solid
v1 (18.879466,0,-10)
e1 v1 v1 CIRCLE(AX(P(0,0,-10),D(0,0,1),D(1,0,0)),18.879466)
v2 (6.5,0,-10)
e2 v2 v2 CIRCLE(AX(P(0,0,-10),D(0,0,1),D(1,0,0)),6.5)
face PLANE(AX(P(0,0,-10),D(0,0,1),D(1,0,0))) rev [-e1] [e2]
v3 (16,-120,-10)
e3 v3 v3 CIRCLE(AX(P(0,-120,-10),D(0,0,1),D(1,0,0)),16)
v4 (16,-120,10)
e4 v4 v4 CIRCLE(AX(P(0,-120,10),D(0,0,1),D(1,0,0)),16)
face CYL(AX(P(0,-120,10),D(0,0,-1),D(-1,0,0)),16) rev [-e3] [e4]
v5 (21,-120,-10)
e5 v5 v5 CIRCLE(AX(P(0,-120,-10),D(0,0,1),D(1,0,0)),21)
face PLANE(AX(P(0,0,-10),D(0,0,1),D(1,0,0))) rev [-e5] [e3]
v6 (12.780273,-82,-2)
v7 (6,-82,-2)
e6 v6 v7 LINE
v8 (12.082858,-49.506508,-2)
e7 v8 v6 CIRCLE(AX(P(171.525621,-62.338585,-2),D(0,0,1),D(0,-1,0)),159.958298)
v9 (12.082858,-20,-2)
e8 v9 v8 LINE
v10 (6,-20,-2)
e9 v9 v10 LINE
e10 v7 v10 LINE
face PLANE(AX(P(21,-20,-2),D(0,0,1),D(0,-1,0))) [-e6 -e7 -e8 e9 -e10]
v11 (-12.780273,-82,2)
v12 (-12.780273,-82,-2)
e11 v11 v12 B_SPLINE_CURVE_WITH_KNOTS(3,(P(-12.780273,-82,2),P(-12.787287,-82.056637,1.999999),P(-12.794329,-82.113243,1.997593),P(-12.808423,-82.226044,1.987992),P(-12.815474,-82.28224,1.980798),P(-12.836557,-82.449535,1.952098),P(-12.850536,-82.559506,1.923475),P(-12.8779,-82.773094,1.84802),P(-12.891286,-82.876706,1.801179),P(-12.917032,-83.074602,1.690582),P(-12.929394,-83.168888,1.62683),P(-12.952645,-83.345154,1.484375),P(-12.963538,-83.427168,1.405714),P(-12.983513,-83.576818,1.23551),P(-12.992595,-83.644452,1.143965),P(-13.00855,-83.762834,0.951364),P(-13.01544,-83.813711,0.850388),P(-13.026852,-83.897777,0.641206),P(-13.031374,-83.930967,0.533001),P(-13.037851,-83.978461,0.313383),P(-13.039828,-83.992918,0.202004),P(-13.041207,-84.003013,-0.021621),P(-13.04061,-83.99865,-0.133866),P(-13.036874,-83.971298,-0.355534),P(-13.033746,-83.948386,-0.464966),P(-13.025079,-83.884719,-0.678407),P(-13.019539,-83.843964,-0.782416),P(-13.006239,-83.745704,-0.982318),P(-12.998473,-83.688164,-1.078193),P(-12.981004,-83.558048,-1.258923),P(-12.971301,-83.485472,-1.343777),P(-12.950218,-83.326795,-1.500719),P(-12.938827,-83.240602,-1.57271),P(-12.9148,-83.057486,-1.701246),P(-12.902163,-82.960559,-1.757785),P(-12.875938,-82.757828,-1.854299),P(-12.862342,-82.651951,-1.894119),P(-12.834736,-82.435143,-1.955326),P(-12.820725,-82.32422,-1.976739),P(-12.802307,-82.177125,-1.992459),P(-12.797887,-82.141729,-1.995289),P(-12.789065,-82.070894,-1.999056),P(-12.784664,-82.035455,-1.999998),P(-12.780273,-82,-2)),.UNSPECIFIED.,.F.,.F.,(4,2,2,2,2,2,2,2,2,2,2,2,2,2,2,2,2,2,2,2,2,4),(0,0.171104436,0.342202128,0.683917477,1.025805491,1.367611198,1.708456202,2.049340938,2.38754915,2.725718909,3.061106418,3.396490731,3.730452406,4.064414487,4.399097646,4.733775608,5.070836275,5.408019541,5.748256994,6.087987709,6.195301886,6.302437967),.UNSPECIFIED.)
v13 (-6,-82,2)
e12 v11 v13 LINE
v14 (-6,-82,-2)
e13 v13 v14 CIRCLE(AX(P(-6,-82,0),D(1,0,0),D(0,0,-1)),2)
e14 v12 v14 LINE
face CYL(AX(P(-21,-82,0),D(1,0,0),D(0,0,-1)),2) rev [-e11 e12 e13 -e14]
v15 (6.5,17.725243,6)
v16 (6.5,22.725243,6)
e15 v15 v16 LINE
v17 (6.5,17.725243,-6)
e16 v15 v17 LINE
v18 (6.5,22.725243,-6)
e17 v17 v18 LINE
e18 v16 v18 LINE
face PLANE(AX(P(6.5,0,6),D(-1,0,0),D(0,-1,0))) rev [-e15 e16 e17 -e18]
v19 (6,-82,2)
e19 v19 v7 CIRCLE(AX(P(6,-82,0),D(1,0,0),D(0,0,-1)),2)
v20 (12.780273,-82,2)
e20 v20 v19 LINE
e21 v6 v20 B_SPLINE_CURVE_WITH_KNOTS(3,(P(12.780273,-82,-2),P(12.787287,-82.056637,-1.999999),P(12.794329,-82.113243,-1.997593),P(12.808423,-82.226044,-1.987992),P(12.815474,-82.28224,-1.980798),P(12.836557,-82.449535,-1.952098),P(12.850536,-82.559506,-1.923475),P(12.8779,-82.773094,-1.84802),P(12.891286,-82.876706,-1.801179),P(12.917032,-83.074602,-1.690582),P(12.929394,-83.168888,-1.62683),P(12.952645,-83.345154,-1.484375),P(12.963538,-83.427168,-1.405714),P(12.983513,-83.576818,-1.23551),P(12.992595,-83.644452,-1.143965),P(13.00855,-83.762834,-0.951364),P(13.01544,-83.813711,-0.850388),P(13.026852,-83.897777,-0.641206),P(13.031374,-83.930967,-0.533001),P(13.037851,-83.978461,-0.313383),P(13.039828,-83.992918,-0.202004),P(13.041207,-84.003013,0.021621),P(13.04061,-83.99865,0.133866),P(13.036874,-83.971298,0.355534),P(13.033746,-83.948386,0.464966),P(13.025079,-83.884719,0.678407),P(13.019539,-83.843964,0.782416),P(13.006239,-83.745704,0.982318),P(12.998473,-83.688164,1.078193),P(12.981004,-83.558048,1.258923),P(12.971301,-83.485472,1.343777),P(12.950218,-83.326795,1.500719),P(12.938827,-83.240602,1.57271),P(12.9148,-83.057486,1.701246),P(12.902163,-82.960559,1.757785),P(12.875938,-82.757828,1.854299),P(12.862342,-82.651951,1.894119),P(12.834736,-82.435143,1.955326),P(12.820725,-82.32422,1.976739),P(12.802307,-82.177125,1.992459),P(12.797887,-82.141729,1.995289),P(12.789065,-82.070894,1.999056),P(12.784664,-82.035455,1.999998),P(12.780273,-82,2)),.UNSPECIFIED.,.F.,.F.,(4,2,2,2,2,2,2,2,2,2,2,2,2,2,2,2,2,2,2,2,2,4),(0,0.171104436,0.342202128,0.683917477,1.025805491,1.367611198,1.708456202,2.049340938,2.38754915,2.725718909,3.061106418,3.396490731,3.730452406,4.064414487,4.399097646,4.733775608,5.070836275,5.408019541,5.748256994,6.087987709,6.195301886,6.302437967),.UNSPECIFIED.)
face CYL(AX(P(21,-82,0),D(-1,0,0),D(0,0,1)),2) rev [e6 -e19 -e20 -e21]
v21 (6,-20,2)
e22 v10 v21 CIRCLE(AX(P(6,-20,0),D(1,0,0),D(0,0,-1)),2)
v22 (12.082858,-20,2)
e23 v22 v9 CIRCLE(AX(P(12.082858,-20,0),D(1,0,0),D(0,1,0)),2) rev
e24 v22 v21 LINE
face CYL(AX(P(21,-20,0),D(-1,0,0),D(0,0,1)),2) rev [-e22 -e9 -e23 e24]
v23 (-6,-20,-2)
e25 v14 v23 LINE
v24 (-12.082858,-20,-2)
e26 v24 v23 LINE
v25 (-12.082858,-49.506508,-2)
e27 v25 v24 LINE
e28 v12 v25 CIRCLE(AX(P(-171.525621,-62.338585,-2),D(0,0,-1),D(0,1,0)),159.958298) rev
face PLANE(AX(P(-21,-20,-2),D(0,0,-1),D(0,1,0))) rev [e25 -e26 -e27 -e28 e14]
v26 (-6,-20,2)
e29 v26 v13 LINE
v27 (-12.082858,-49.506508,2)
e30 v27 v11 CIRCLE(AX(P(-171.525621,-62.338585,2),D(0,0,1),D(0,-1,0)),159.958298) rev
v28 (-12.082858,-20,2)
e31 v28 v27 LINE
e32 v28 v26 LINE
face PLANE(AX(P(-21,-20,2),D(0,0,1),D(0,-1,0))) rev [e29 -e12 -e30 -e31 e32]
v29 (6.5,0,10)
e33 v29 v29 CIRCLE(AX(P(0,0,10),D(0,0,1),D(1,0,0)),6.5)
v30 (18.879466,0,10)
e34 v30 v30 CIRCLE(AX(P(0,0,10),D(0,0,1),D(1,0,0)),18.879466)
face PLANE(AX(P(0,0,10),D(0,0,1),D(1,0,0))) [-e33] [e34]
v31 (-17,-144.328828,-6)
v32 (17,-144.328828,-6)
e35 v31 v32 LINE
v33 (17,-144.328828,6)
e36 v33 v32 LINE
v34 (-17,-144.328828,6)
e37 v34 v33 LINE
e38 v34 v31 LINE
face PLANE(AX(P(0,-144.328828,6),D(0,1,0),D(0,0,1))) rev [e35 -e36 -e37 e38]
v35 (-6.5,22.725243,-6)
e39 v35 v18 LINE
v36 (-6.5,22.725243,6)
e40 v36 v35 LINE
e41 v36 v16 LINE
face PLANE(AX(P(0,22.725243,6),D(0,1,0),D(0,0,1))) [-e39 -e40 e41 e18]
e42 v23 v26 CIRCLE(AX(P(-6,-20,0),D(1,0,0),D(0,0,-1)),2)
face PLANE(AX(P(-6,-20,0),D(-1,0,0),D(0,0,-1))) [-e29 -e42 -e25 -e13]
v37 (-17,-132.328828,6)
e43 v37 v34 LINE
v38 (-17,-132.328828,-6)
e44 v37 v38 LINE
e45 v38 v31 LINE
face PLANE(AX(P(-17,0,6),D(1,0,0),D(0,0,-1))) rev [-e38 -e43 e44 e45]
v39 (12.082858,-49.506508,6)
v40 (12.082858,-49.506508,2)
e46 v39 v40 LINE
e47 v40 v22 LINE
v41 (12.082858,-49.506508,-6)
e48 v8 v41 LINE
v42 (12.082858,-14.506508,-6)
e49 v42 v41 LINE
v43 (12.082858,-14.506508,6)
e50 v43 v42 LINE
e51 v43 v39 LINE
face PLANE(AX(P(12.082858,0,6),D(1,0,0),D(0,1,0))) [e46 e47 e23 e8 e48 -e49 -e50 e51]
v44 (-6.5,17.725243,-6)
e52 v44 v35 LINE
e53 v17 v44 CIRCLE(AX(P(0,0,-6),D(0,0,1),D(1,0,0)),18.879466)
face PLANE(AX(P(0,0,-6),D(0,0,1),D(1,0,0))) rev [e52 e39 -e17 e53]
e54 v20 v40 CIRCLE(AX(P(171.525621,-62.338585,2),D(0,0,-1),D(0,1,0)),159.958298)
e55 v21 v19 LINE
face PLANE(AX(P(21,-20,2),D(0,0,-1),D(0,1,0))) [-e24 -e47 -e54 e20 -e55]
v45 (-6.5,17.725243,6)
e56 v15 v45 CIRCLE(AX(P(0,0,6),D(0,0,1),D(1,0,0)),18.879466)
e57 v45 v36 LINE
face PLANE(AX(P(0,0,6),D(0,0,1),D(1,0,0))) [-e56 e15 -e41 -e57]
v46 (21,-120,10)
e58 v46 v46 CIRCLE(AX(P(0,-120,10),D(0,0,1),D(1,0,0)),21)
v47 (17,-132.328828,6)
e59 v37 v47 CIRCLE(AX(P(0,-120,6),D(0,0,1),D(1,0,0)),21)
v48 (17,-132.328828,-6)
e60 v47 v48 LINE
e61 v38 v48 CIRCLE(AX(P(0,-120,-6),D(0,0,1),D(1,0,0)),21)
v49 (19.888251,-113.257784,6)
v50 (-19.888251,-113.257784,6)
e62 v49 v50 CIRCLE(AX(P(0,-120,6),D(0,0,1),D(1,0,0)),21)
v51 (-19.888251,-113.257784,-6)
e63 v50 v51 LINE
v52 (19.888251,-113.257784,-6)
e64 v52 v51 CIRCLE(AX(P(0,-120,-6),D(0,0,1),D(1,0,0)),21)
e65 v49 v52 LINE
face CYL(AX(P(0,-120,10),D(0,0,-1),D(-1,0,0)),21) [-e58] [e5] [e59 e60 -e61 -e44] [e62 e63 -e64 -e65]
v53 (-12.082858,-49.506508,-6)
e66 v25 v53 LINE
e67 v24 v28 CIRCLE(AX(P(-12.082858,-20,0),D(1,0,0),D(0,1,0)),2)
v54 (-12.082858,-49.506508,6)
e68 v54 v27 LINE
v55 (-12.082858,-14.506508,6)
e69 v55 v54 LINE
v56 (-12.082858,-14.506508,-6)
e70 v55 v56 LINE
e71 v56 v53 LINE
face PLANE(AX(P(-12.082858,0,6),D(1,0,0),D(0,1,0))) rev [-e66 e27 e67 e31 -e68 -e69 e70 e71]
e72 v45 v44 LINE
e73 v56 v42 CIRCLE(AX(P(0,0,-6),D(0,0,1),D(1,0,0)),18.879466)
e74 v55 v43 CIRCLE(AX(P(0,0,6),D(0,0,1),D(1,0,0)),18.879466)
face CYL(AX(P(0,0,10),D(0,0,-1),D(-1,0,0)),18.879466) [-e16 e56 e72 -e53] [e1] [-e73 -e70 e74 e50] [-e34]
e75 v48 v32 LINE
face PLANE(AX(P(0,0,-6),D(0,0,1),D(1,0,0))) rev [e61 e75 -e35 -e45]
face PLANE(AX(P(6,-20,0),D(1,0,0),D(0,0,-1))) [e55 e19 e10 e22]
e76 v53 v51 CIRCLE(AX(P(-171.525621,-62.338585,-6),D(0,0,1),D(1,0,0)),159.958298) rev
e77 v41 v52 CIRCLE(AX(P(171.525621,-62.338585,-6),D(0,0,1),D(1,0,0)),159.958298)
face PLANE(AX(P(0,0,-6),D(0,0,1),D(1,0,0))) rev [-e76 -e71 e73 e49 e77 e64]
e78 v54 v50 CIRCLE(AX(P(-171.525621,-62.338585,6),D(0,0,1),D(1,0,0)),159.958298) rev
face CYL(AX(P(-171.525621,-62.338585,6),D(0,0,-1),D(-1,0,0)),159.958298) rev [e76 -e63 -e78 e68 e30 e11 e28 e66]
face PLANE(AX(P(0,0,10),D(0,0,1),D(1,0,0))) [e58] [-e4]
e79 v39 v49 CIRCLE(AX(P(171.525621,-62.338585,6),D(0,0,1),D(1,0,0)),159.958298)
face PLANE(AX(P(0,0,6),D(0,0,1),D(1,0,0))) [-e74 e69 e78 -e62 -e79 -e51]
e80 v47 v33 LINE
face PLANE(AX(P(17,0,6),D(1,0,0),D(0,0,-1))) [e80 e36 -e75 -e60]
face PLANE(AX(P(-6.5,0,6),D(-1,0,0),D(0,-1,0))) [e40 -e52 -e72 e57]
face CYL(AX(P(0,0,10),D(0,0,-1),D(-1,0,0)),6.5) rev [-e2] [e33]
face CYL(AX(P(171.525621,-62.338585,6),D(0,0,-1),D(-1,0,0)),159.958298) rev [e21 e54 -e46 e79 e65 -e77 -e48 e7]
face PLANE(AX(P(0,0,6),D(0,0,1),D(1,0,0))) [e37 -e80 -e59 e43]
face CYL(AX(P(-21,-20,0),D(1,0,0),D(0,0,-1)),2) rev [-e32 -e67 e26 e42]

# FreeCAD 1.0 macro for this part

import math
import FreeCAD as App
import Part
import Sketcher

V = App.Vector

doc = App.newDocument("Part")
body = doc.addObject("PartDesign::Body", "Body")

# Sketch on XY plane
sketch1 = body.newObject("Sketcher::SketchObject", "Sketch")
sketch1.AttachmentSupport = (doc.getObject("XY_Plane"), [""])
sketch1.MapMode = "FlatFace"
sketch1.addGeometry(Part.Circle(V(0, 0, 0), V(0, 0, 1), 19), False)
sketch1.addGeometry(Part.Circle(V(0, 0, 0), V(0, 0, 1), 6), False)
sketch1.addConstraint(Sketcher.Constraint("Coincident", 0, 3, -1, 1))
sketch1.addConstraint(Sketcher.Constraint("Coincident", 1, 3, -1, 1))
sketch1.addConstraint(Sketcher.Constraint("Diameter", 1, 13.0))
sketch1.addConstraint(Sketcher.Constraint("Diameter", 0, 37.758932))
pad1 = body.newObject("PartDesign::Pad", "Pad")
pad1.Profile = sketch1
pad1.Length = 20
pad1.Midplane = True
body2 = doc.addObject("PartDesign::Body", "Body001")

# Sketch on XY plane
sketch2 = body2.newObject("Sketcher::SketchObject", "Sketch001")
sketch2.AttachmentSupport = (doc.getObject("XY_Plane001"), [""])
sketch2.MapMode = "FlatFace"
sketch2.addGeometry(Part.Circle(V(0, -120, 0), V(0, 0, 1), 21), False)
sketch2.addGeometry(Part.Circle(V(0, -120, 0), V(0, 0, 1), 16), False)
sketch2.addConstraint(Sketcher.Constraint("Coincident", 1, 3, 0, 3))
sketch2.addConstraint(Sketcher.Constraint("PointOnObject", 0, 3, -2))
sketch2.addConstraint(Sketcher.Constraint("Diameter", 0, 42.0))
sketch2.addConstraint(Sketcher.Constraint("Diameter", 1, 32.0))
sketch2.addConstraint(Sketcher.Constraint("DistanceY", 0, 3, -1, 1, 120.0))
pad2 = body2.newObject("PartDesign::Pad", "Pad001")
pad2.Profile = sketch2
pad2.Length = 20
pad2.Midplane = True
body.AllowCompound = True
doc.recompute()

boolean = body.newObject("PartDesign::Boolean", "Boolean")
boolean.Type = "Fuse"
boolean.addObjects([body2])

# Sketch on XY plane
sketch3 = body.newObject("Sketcher::SketchObject", "Sketch002")
sketch3.AttachmentSupport = (doc.getObject("XY_Plane"), [""])
sketch3.MapMode = "FlatFace"
sketch3.addGeometry(Part.ArcOfCircle(Part.Circle(V(0, 0, 0), V(0, 0, 1), 18.879466), math.radians(-129.791819), math.radians(-50.208181)), False)
sketch3.addGeometry(Part.LineSegment(V(-12.082858, -14.506508, 0), V(-12.082858, -49.506508, 0)), False)
sketch3.addGeometry(Part.ArcOfCircle(Part.Circle(V(-171.525621, -62.338585, 0), V(0, 0, 1), 159.958298), math.radians(-18.561837), math.radians(4.601291)), False)
sketch3.addGeometry(Part.ArcOfCircle(Part.Circle(V(0, -120, 0), V(0, 0, 1), 21), math.radians(18.726915), math.radians(161.273085)), False)
sketch3.addGeometry(Part.ArcOfCircle(Part.Circle(V(171.525621, -62.338585, 0), V(0, 0, 1), 159.958298), math.radians(175.398709), math.radians(198.561837)), False)
sketch3.addGeometry(Part.LineSegment(V(12.082858, -49.506508, 0), V(12.082858, -14.506508, 0)), False)
sketch3.addConstraint(Sketcher.Constraint("Coincident", 0, 1, 1, 1))
sketch3.addConstraint(Sketcher.Constraint("Coincident", 1, 2, 2, 2))
sketch3.addConstraint(Sketcher.Constraint("Coincident", 2, 1, 3, 2))
sketch3.addConstraint(Sketcher.Constraint("Coincident", 3, 1, 4, 2))
sketch3.addConstraint(Sketcher.Constraint("Coincident", 4, 1, 5, 1))
sketch3.addConstraint(Sketcher.Constraint("Coincident", 5, 2, 0, 2))
sketch3.addConstraint(Sketcher.Constraint("Vertical", 1))
sketch3.addConstraint(Sketcher.Constraint("Vertical", 5))
sketch3.addConstraint(Sketcher.Constraint("Coincident", 0, 3, -1, 1))
sketch3.addConstraint(Sketcher.Constraint("Equal", 2, 4))
sketch3.addConstraint(Sketcher.Constraint("Symmetric", 2, 3, 4, 3, -2))
sketch3.addConstraint(Sketcher.Constraint("PointOnObject", 3, 3, -2))
sketch3.addConstraint(Sketcher.Constraint("Horizontal", 1, 2, 4, 1))
sketch3.addConstraint(Sketcher.Constraint("Radius", 3, 21.0))
sketch3.addConstraint(Sketcher.Constraint("DistanceY", 1, 2, 1, 1, 35.0))
sketch3.addConstraint(Sketcher.Constraint("DistanceY", 3, 3, -1, 1, 120.0))
sketch3.addConstraint(Sketcher.Constraint("Radius", 0, 18.879466))
sketch3.addConstraint(Sketcher.Constraint("Radius", 2, 159.958298))
sketch3.addConstraint(Sketcher.Constraint("DistanceY", 2, 1, 2, 3, 50.919199))
sketch3.addConstraint(Sketcher.Constraint("DistanceX", 2, 1, 3, 1, 39.776502))
pad3 = body.newObject("PartDesign::Pad", "Pad002")
pad3.Profile = sketch3
pad3.Length = 12
pad3.Midplane = True

# Sketch on XY plane
sketch4 = body.newObject("Sketcher::SketchObject", "Sketch003")
sketch4.AttachmentSupport = (doc.getObject("XY_Plane"), [""])
sketch4.MapMode = "FlatFace"
sketch4.addGeometry(Part.LineSegment(V(-6, 23, 0), V(-6, 18, 0)), False)
sketch4.addGeometry(Part.ArcOfCircle(Part.Circle(V(0, 0, 0), V(0, 0, 1), 19), math.radians(70), math.radians(110)), False)
sketch4.addGeometry(Part.LineSegment(V(6, 18, 0), V(6, 23, 0)), False)
sketch4.addGeometry(Part.LineSegment(V(6, 23, 0), V(-6, 23, 0)), False)
sketch4.addGeometry(Part.ArcOfCircle(Part.Circle(V(0, -120, 0), V(0, 0, 1), 21), math.radians(-144), math.radians(-36)), False)
sketch4.addGeometry(Part.LineSegment(V(-17, -132, 0), V(-17, -144, 0)), False)
sketch4.addGeometry(Part.LineSegment(V(-17, -144, 0), V(17, -144, 0)), False)
sketch4.addGeometry(Part.LineSegment(V(17, -144, 0), V(17, -132, 0)), False)
sketch4.addConstraint(Sketcher.Constraint("Coincident", 0, 2, 1, 2))
sketch4.addConstraint(Sketcher.Constraint("Coincident", 1, 1, 2, 1))
sketch4.addConstraint(Sketcher.Constraint("Coincident", 2, 2, 3, 1))
sketch4.addConstraint(Sketcher.Constraint("Coincident", 3, 2, 0, 1))
sketch4.addConstraint(Sketcher.Constraint("Coincident", 4, 1, 5, 1))
sketch4.addConstraint(Sketcher.Constraint("Coincident", 5, 2, 6, 1))
sketch4.addConstraint(Sketcher.Constraint("Coincident", 6, 2, 7, 1))
sketch4.addConstraint(Sketcher.Constraint("Coincident", 7, 2, 4, 2))
sketch4.addConstraint(Sketcher.Constraint("Vertical", 0))
sketch4.addConstraint(Sketcher.Constraint("Vertical", 2))
sketch4.addConstraint(Sketcher.Constraint("Horizontal", 3))
sketch4.addConstraint(Sketcher.Constraint("Vertical", 5))
sketch4.addConstraint(Sketcher.Constraint("Horizontal", 6))
sketch4.addConstraint(Sketcher.Constraint("Vertical", 7))
sketch4.addConstraint(Sketcher.Constraint("Coincident", 1, 3, -1, 1))
sketch4.addConstraint(Sketcher.Constraint("Symmetric", 4, 1, 7, 2, -2))
sketch4.addConstraint(Sketcher.Constraint("Horizontal", 0, 2, 1, 1))
sketch4.addConstraint(Sketcher.Constraint("Radius", 4, 21.0))
sketch4.addConstraint(Sketcher.Constraint("DistanceX", 3, 2, 3, 1, 13.0))
sketch4.addConstraint(Sketcher.Constraint("DistanceX", 6, 1, 6, 2, 34.0))
sketch4.addConstraint(Sketcher.Constraint("DistanceY", 0, 2, 0, 1, 5.0))
sketch4.addConstraint(Sketcher.Constraint("DistanceY", 5, 2, 5, 1, 12.0))
sketch4.addConstraint(Sketcher.Constraint("DistanceY", 4, 3, -1, 1, 120.0))
sketch4.addConstraint(Sketcher.Constraint("Radius", 1, 18.879466))
pad4 = body.newObject("PartDesign::Pad", "Pad003")
pad4.Profile = sketch4
pad4.Length = 12
pad4.Midplane = True

# Sketch on YZ plane
sketch5 = body.newObject("Sketcher::SketchObject", "Sketch004")
sketch5.AttachmentSupport = (doc.getObject("YZ_Plane"), [""])
sketch5.MapMode = "FlatFace"
sketch5.AttachmentOffset = App.Placement(V(0, 0, 6), App.Rotation())
sketch5.addGeometry(Part.LineSegment(V(-82, -2, 0), V(-20, -2, 0)), False)
sketch5.addGeometry(Part.ArcOfCircle(Part.Circle(V(-20, 0, 0), V(0, 0, 1), 2), math.radians(-90), math.radians(90)), False)
sketch5.addGeometry(Part.LineSegment(V(-20, 2, 0), V(-82, 2, 0)), False)
sketch5.addGeometry(Part.ArcOfCircle(Part.Circle(V(-82, 0, 0), V(0, 0, 1), 2), math.radians(90), math.radians(270)), False)
sketch5.addConstraint(Sketcher.Constraint("Tangent", 0, 2, 1, 1))
sketch5.addConstraint(Sketcher.Constraint("Tangent", 1, 2, 2, 1))
sketch5.addConstraint(Sketcher.Constraint("Tangent", 2, 2, 3, 1))
sketch5.addConstraint(Sketcher.Constraint("Tangent", 3, 2, 0, 1))
sketch5.addConstraint(Sketcher.Constraint("Horizontal", 0))
sketch5.addConstraint(Sketcher.Constraint("Horizontal", 2))
sketch5.addConstraint(Sketcher.Constraint("PointOnObject", 1, 3, -1))
sketch5.addConstraint(Sketcher.Constraint("Radius", 1, 2.0))
sketch5.addConstraint(Sketcher.Constraint("DistanceX", 0, 1, 0, 2, 62.0))
sketch5.addConstraint(Sketcher.Constraint("DistanceX", 1, 3, -1, 1, 20.0))
pocket1 = body.newObject("PartDesign::Pocket", "Pocket")
pocket1.Profile = sketch5
pocket1.Type = "ThroughAll"
pocket1.Reversed = True
doc.recompute()

mirrored = body.newObject("PartDesign::Mirrored", "Mirrored")
mirrored.Originals = [pocket1]
mirrored.MirrorPlane = (doc.getObject("YZ_Plane"), [""])
body.Tip = mirrored

doc.recompute()
